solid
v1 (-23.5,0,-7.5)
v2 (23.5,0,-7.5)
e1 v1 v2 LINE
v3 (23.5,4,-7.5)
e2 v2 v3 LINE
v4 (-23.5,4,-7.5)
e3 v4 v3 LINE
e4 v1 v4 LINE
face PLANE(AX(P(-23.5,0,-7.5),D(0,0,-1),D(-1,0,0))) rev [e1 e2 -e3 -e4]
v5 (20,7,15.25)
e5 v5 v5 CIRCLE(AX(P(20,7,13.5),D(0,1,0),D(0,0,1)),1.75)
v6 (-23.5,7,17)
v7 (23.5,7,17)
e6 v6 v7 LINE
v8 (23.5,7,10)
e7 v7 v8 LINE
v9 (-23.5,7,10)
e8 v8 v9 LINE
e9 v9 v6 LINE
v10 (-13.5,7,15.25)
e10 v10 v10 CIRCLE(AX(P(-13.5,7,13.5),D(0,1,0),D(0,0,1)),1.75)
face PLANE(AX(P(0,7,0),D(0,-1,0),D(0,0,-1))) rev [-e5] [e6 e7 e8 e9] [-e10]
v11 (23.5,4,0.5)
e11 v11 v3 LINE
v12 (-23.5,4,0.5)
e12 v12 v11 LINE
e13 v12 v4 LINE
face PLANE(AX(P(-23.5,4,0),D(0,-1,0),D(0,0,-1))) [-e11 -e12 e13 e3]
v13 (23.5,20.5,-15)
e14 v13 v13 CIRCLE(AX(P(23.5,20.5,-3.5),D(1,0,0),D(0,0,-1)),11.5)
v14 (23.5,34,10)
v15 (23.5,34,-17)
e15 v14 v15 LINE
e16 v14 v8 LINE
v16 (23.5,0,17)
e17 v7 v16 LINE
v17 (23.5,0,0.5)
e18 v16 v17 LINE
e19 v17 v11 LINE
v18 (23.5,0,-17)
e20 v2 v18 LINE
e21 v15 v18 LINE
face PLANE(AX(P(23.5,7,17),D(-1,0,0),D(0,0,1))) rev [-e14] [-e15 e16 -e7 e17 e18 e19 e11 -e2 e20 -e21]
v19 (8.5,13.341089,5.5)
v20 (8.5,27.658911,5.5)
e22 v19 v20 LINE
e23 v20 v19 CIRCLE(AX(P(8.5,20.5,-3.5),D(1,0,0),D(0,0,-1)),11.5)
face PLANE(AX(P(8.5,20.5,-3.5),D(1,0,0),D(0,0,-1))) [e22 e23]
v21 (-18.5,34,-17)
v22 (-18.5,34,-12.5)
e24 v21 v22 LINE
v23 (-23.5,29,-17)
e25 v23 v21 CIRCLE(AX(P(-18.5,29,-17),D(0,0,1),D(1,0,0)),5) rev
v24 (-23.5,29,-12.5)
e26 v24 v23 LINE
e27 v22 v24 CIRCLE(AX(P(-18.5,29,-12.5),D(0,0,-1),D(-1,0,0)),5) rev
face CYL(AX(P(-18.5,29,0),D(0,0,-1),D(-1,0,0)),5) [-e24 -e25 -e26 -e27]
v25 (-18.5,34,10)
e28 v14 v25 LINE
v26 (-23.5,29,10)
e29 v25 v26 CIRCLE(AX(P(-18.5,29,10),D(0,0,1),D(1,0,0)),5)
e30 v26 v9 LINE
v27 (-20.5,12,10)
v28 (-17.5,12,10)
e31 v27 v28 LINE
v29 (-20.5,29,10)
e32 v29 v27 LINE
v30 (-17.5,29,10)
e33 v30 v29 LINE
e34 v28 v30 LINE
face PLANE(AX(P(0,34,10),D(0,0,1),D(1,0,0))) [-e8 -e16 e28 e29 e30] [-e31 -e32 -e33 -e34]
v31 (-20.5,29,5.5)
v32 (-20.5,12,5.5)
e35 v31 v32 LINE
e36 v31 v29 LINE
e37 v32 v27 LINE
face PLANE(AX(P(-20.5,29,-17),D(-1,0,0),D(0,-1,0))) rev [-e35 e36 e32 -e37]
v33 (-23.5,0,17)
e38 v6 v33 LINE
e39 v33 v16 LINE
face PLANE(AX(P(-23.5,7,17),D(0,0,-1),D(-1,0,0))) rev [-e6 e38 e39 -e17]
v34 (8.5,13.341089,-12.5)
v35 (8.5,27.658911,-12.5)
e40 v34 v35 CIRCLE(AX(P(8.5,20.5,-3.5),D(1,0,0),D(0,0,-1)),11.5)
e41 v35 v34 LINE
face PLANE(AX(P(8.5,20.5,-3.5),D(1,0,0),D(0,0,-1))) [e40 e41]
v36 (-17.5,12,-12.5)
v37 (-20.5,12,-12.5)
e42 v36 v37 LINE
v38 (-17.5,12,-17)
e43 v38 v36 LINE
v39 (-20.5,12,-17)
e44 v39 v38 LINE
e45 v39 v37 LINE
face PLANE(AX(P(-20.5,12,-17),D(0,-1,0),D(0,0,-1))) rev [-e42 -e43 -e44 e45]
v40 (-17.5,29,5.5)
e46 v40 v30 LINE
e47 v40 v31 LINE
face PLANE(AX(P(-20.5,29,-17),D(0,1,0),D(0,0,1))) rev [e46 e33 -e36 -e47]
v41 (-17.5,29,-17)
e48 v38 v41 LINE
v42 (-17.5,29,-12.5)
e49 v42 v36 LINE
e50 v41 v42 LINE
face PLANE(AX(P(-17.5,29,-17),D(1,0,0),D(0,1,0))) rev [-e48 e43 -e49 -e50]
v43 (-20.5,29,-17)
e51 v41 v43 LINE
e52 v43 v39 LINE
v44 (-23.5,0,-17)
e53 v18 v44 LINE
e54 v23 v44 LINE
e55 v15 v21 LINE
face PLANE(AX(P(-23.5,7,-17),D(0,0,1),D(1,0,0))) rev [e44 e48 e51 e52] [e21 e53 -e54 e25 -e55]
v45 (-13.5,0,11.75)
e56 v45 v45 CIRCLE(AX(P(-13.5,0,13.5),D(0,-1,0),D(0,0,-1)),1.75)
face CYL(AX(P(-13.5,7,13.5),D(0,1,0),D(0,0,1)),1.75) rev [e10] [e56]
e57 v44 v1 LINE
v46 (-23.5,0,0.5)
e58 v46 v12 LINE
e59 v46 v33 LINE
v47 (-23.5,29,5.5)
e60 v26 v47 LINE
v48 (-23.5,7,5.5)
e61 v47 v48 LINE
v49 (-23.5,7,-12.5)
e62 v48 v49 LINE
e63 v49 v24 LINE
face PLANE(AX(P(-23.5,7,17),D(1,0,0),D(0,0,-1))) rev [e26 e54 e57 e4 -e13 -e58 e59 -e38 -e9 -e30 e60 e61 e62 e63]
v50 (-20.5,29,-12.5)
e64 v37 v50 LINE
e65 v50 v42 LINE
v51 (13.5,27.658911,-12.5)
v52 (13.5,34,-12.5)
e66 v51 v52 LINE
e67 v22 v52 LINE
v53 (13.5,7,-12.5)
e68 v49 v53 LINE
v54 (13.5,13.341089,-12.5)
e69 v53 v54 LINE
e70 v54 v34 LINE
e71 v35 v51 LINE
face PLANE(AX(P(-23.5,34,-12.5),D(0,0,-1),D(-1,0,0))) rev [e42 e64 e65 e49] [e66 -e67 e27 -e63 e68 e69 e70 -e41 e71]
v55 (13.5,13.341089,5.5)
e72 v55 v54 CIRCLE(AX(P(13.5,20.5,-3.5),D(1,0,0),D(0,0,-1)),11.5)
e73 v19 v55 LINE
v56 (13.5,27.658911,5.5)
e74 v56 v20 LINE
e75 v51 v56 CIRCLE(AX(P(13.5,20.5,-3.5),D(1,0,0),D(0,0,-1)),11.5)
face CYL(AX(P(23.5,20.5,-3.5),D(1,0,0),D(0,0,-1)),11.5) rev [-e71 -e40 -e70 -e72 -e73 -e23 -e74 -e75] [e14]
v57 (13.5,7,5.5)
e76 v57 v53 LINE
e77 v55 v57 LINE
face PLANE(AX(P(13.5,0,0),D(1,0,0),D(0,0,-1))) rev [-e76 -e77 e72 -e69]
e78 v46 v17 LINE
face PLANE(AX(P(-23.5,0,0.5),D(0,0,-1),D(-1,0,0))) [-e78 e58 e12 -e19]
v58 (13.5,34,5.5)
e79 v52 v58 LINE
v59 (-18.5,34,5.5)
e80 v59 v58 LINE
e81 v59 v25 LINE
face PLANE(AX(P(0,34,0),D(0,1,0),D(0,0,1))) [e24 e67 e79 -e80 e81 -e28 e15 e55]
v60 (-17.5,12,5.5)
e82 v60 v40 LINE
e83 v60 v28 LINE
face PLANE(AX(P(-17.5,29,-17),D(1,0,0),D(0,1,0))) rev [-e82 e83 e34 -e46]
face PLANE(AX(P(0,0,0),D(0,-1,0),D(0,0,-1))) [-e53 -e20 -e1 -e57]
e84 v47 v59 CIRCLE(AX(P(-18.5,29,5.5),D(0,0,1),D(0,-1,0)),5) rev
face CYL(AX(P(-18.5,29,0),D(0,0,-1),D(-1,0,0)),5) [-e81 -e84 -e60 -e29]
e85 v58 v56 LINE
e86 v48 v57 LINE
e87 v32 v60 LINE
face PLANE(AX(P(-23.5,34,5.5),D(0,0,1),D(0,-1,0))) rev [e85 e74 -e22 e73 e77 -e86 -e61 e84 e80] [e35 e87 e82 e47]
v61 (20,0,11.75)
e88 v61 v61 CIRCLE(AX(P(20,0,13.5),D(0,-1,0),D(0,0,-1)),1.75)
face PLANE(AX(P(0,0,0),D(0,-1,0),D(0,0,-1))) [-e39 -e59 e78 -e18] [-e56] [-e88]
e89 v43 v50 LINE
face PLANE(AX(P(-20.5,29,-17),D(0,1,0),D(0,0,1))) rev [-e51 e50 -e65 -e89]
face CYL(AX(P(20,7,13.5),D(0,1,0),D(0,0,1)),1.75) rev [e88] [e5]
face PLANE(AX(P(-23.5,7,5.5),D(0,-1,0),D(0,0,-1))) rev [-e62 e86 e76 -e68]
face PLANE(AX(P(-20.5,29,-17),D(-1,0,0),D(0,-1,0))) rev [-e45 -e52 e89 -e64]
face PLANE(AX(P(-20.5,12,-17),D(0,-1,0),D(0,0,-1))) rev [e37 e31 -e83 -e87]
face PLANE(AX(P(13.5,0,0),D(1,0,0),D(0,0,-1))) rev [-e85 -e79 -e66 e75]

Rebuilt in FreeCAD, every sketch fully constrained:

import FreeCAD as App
import Part
import Sketcher

V = App.Vector


def edges_at(feature, points):
    """Names of the edges that pass closest to the given points."""
    edges = feature.Shape.Edges
    near = lambda p: min(range(len(edges)), key=lambda i: edges[i].distToShape(Part.Vertex(*p))[0])
    return sorted({f"Edge{near(p) + 1}" for p in points})

doc = App.newDocument("Part")
body = doc.addObject("PartDesign::Body", "Body")

# Sketch on XZ plane
sketch1 = doc.addObject("Sketcher::SketchObject", "Sketch")
body.addObject(sketch1)
sketch1.AttachmentSupport = (doc.XZ_Plane, [""])
sketch1.MapMode = "FlatFace"
sketch1.addGeometry([
    Part.LineSegment(V(-24, -17, 0), V(-24, 17, 0)),
    Part.LineSegment(V(-24, 17, 0), V(24, 17, 0)),
    Part.LineSegment(V(24, 17, 0), V(24, -17, 0)),
    Part.LineSegment(V(24, -17, 0), V(-24, -17, 0)),
], False)
sketch1.addConstraint([
    Sketcher.Constraint("Coincident", 0, 2, 1, 1),
    Sketcher.Constraint("Coincident", 1, 2, 2, 1),
    Sketcher.Constraint("Coincident", 2, 2, 3, 1),
    Sketcher.Constraint("Coincident", 3, 2, 0, 1),
    Sketcher.Constraint("Vertical", 0),
    Sketcher.Constraint("Horizontal", 1),
    Sketcher.Constraint("Vertical", 2),
    Sketcher.Constraint("Horizontal", 3),
    Sketcher.Constraint("Symmetric", 0, 2, 2, 2, -1, 1),
    Sketcher.Constraint("DistanceX", 1, 1, 1, 2, 47.0),
    Sketcher.Constraint("DistanceY", 0, 1, 0, 2, 34.0),
])
pad1 = doc.addObject("PartDesign::Pad", "Pad")
body.addObject(pad1)
pad1.Profile = sketch1
pad1.Length = 7
pad1.Reversed = True

# Sketch on YZ plane
sketch2 = doc.addObject("Sketcher::SketchObject", "Sketch001")
body.addObject(sketch2)
sketch2.AttachmentSupport = (doc.YZ_Plane, [""])
sketch2.MapMode = "FlatFace"
sketch2.AttachmentOffset = App.Placement(V(0, 0, 23.5), App.Rotation())
sketch2.addGeometry([
    Part.LineSegment(V(4, 0.5, 0), V(0, 0.5, 0)),
    Part.LineSegment(V(0, 0.5, 0), V(0, -7.5, 0)),
    Part.LineSegment(V(0, -7.5, 0), V(4, -7.5, 0)),
    Part.LineSegment(V(4, -7.5, 0), V(4, 0.5, 0)),
], False)
sketch2.addConstraint([
    Sketcher.Constraint("Coincident", 0, 2, 1, 1),
    Sketcher.Constraint("Coincident", 1, 2, 2, 1),
    Sketcher.Constraint("Coincident", 2, 2, 3, 1),
    Sketcher.Constraint("Coincident", 3, 2, 0, 1),
    Sketcher.Constraint("Horizontal", 0),
    Sketcher.Constraint("Vertical", 1),
    Sketcher.Constraint("Horizontal", 2),
    Sketcher.Constraint("Vertical", 3),
    Sketcher.Constraint("PointOnObject", 0, 2, -2),
    Sketcher.Constraint("DistanceX", 0, 2, 0, 1, 4.0),
    Sketcher.Constraint("DistanceY", 1, 2, 1, 1, 8.0),
    Sketcher.Constraint("DistanceY", -1, 1, 0, 2, 0.5),
])
pocket1 = doc.addObject("PartDesign::Pocket", "Pocket")
body.addObject(pocket1)
pocket1.Profile = sketch2
pocket1.Type = "ThroughAll"

# Sketch on XZ plane
sketch3 = doc.addObject("Sketcher::SketchObject", "Sketch002")
body.addObject(sketch3)
sketch3.AttachmentSupport = (doc.XZ_Plane, [""])
sketch3.MapMode = "FlatFace"
sketch3.AttachmentOffset = App.Placement(V(0, 0, -7), App.Rotation())
sketch3.addGeometry([
    Part.Circle(V(-13.5, 13.5, 0), V(0, 0, 1), 1.8),
    Part.Circle(V(20, 13.5, 0), V(0, 0, 1), 1.8),
], False)
sketch3.addConstraint([
    Sketcher.Constraint("Equal", 0, 1),
    Sketcher.Constraint("Horizontal", 0, 3, 1, 3),
    Sketcher.Constraint("Diameter", 0, 3.5),
    Sketcher.Constraint("DistanceX", -1, 1, 1, 3, 20.0),
    Sketcher.Constraint("DistanceX", 0, 3, -1, 1, 13.5),
    Sketcher.Constraint("DistanceY", -1, 1, 0, 3, 13.5),
])
doc.recompute()
hole = doc.addObject("PartDesign::Hole", "Hole")
body.addObject(hole)
hole.Profile = sketch3
hole.ThreadType = "None"
hole.Diameter = 3.5
hole.DepthType = "ThroughAll"
hole.Reversed = True

# Sketch on XZ plane
sketch4 = doc.addObject("Sketcher::SketchObject", "Sketch003")
body.addObject(sketch4)
sketch4.AttachmentSupport = (doc.XZ_Plane, [""])
sketch4.MapMode = "FlatFace"
sketch4.AttachmentOffset = App.Placement(V(0, 0, -7), App.Rotation())
sketch4.addGeometry([
    Part.LineSegment(V(-24, 10, 0), V(24, 10, 0)),
    Part.LineSegment(V(24, 10, 0), V(24, -17, 0)),
    Part.LineSegment(V(24, -17, 0), V(-24, -17, 0)),
    Part.LineSegment(V(-24, -17, 0), V(-24, 10, 0)),
], False)
sketch4.addConstraint([
    Sketcher.Constraint("Coincident", 0, 2, 1, 1),
    Sketcher.Constraint("Coincident", 1, 2, 2, 1),
    Sketcher.Constraint("Coincident", 2, 2, 3, 1),
    Sketcher.Constraint("Coincident", 3, 2, 0, 1),
    Sketcher.Constraint("Horizontal", 0),
    Sketcher.Constraint("Vertical", 1),
    Sketcher.Constraint("Horizontal", 2),
    Sketcher.Constraint("Vertical", 3),
    Sketcher.Constraint("DistanceX", 0, 1, 0, 2, 47.0),
    Sketcher.Constraint("DistanceY", 1, 2, 1, 1, 27.0),
    Sketcher.Constraint("DistanceY", -1, 1, 0, 2, 10.0),
    Sketcher.Constraint("DistanceX", -1, 1, 0, 2, 23.5),
])
pad2 = doc.addObject("PartDesign::Pad", "Pad001")
body.addObject(pad2)
pad2.Profile = sketch4
pad2.Length = 27
pad2.Reversed = True

# Sketch on YZ plane
sketch5 = doc.addObject("Sketcher::SketchObject", "Sketch004")
body.addObject(sketch5)
sketch5.AttachmentSupport = (doc.YZ_Plane, [""])
sketch5.MapMode = "FlatFace"
sketch5.AttachmentOffset = App.Placement(V(0, 0, 23.5), App.Rotation())
sketch5.addGeometry(Part.Circle(V(20, -4, 0), V(0, 0, 1), 12), False)
sketch5.addConstraint([
    Sketcher.Constraint("Diameter", 0, 23.0),
    Sketcher.Constraint("DistanceX", -1, 1, 0, 3, 20.5),
    Sketcher.Constraint("DistanceY", 0, 3, -1, 1, 3.5),
])
doc.recompute()
hole2 = doc.addObject("PartDesign::Hole", "Hole001")
body.addObject(hole2)
hole2.Profile = sketch5
hole2.ThreadType = "None"
hole2.Diameter = 23
hole2.DepthType = "Dimension"
hole2.Depth = 10
hole2.DrillPoint = "Flat"

# Sketch on YZ plane
sketch6 = doc.addObject("Sketcher::SketchObject", "Sketch005")
body.addObject(sketch6)
sketch6.AttachmentSupport = (doc.YZ_Plane, [""])
sketch6.MapMode = "FlatFace"
sketch6.AttachmentOffset = App.Placement(V(0, 0, 13.5), App.Rotation())
sketch6.addGeometry([
    Part.LineSegment(V(34, -12, 0), V(34, 6, 0)),
    Part.LineSegment(V(34, 6, 0), V(7, 6, 0)),
    Part.LineSegment(V(7, 6, 0), V(7, -12, 0)),
    Part.LineSegment(V(7, -12, 0), V(34, -12, 0)),
], False)
sketch6.addConstraint([
    Sketcher.Constraint("Coincident", 0, 2, 1, 1),
    Sketcher.Constraint("Coincident", 1, 2, 2, 1),
    Sketcher.Constraint("Coincident", 2, 2, 3, 1),
    Sketcher.Constraint("Coincident", 3, 2, 0, 1),
    Sketcher.Constraint("Vertical", 0),
    Sketcher.Constraint("Horizontal", 1),
    Sketcher.Constraint("Vertical", 2),
    Sketcher.Constraint("Horizontal", 3),
    Sketcher.Constraint("DistanceX", 1, 2, 1, 1, 27.0),
    Sketcher.Constraint("DistanceY", 0, 1, 0, 2, 18.0),
    Sketcher.Constraint("DistanceX", -1, 1, 0, 2, 34.0),
    Sketcher.Constraint("DistanceY", -1, 1, 0, 2, 5.5),
])
pocket2 = doc.addObject("PartDesign::Pocket", "Pocket001")
body.addObject(pocket2)
pocket2.Profile = sketch6
pocket2.Type = "ThroughAll"

# Sketch on YZ plane
sketch7 = doc.addObject("Sketcher::SketchObject", "Sketch006")
body.addObject(sketch7)
sketch7.AttachmentSupport = (doc.YZ_Plane, [""])
sketch7.MapMode = "FlatFace"
sketch7.AttachmentOffset = App.Placement(V(0, 0, 8.5), App.Rotation())
sketch7.addGeometry(Part.Circle(V(20, -4, 0), V(0, 0, 1), 12), False)
sketch7.addConstraint([
    Sketcher.Constraint("Diameter", 0, 23.0),
    Sketcher.Constraint("DistanceX", -1, 1, 0, 3, 20.5),
    Sketcher.Constraint("DistanceY", 0, 3, -1, 1, 3.5),
])
pocket3 = doc.addObject("PartDesign::Pocket", "Pocket002")
body.addObject(pocket3)
pocket3.Profile = sketch7
pocket3.Length = 5
pocket3.Reversed = True

# Sketch on XY plane
sketch8 = doc.addObject("Sketcher::SketchObject", "Sketch007")
body.addObject(sketch8)
sketch8.AttachmentSupport = (doc.XY_Plane, [""])
sketch8.MapMode = "FlatFace"
sketch8.AttachmentOffset = App.Placement(V(0, 0, 10), App.Rotation())
sketch8.addGeometry([
    Part.LineSegment(V(-17.5, 29, 0), V(-20.5, 29, 0)),
    Part.LineSegment(V(-20.5, 29, 0), V(-20.5, 12, 0)),
    Part.LineSegment(V(-20.5, 12, 0), V(-17.5, 12, 0)),
    Part.LineSegment(V(-17.5, 12, 0), V(-17.5, 29, 0)),
], False)
sketch8.addConstraint([
    Sketcher.Constraint("Coincident", 0, 2, 1, 1),
    Sketcher.Constraint("Coincident", 1, 2, 2, 1),
    Sketcher.Constraint("Coincident", 2, 2, 3, 1),
    Sketcher.Constraint("Coincident", 3, 2, 0, 1),
    Sketcher.Constraint("Horizontal", 0),
    Sketcher.Constraint("Vertical", 1),
    Sketcher.Constraint("Horizontal", 2),
    Sketcher.Constraint("Vertical", 3),
    Sketcher.Constraint("DistanceX", 0, 2, 0, 1, 3.0),
    Sketcher.Constraint("DistanceY", 1, 2, 1, 1, 17.0),
    Sketcher.Constraint("DistanceY", -1, 1, 0, 2, 29.0),
    Sketcher.Constraint("DistanceX", 0, 2, -1, 1, 20.5),
])
pocket4 = doc.addObject("PartDesign::Pocket", "Pocket003")
body.addObject(pocket4)
pocket4.Profile = sketch8
pocket4.Type = "ThroughAll"
doc.recompute()

fillet = doc.addObject("PartDesign::Fillet", "Fillet")
body.addObject(fillet)
fillet.Base = (pocket4, edges_at(pocket4, [(-23.5, 34, -14.75), (-23.5, 34, 7.75)]))
fillet.Radius = 5

doc.recompute()
